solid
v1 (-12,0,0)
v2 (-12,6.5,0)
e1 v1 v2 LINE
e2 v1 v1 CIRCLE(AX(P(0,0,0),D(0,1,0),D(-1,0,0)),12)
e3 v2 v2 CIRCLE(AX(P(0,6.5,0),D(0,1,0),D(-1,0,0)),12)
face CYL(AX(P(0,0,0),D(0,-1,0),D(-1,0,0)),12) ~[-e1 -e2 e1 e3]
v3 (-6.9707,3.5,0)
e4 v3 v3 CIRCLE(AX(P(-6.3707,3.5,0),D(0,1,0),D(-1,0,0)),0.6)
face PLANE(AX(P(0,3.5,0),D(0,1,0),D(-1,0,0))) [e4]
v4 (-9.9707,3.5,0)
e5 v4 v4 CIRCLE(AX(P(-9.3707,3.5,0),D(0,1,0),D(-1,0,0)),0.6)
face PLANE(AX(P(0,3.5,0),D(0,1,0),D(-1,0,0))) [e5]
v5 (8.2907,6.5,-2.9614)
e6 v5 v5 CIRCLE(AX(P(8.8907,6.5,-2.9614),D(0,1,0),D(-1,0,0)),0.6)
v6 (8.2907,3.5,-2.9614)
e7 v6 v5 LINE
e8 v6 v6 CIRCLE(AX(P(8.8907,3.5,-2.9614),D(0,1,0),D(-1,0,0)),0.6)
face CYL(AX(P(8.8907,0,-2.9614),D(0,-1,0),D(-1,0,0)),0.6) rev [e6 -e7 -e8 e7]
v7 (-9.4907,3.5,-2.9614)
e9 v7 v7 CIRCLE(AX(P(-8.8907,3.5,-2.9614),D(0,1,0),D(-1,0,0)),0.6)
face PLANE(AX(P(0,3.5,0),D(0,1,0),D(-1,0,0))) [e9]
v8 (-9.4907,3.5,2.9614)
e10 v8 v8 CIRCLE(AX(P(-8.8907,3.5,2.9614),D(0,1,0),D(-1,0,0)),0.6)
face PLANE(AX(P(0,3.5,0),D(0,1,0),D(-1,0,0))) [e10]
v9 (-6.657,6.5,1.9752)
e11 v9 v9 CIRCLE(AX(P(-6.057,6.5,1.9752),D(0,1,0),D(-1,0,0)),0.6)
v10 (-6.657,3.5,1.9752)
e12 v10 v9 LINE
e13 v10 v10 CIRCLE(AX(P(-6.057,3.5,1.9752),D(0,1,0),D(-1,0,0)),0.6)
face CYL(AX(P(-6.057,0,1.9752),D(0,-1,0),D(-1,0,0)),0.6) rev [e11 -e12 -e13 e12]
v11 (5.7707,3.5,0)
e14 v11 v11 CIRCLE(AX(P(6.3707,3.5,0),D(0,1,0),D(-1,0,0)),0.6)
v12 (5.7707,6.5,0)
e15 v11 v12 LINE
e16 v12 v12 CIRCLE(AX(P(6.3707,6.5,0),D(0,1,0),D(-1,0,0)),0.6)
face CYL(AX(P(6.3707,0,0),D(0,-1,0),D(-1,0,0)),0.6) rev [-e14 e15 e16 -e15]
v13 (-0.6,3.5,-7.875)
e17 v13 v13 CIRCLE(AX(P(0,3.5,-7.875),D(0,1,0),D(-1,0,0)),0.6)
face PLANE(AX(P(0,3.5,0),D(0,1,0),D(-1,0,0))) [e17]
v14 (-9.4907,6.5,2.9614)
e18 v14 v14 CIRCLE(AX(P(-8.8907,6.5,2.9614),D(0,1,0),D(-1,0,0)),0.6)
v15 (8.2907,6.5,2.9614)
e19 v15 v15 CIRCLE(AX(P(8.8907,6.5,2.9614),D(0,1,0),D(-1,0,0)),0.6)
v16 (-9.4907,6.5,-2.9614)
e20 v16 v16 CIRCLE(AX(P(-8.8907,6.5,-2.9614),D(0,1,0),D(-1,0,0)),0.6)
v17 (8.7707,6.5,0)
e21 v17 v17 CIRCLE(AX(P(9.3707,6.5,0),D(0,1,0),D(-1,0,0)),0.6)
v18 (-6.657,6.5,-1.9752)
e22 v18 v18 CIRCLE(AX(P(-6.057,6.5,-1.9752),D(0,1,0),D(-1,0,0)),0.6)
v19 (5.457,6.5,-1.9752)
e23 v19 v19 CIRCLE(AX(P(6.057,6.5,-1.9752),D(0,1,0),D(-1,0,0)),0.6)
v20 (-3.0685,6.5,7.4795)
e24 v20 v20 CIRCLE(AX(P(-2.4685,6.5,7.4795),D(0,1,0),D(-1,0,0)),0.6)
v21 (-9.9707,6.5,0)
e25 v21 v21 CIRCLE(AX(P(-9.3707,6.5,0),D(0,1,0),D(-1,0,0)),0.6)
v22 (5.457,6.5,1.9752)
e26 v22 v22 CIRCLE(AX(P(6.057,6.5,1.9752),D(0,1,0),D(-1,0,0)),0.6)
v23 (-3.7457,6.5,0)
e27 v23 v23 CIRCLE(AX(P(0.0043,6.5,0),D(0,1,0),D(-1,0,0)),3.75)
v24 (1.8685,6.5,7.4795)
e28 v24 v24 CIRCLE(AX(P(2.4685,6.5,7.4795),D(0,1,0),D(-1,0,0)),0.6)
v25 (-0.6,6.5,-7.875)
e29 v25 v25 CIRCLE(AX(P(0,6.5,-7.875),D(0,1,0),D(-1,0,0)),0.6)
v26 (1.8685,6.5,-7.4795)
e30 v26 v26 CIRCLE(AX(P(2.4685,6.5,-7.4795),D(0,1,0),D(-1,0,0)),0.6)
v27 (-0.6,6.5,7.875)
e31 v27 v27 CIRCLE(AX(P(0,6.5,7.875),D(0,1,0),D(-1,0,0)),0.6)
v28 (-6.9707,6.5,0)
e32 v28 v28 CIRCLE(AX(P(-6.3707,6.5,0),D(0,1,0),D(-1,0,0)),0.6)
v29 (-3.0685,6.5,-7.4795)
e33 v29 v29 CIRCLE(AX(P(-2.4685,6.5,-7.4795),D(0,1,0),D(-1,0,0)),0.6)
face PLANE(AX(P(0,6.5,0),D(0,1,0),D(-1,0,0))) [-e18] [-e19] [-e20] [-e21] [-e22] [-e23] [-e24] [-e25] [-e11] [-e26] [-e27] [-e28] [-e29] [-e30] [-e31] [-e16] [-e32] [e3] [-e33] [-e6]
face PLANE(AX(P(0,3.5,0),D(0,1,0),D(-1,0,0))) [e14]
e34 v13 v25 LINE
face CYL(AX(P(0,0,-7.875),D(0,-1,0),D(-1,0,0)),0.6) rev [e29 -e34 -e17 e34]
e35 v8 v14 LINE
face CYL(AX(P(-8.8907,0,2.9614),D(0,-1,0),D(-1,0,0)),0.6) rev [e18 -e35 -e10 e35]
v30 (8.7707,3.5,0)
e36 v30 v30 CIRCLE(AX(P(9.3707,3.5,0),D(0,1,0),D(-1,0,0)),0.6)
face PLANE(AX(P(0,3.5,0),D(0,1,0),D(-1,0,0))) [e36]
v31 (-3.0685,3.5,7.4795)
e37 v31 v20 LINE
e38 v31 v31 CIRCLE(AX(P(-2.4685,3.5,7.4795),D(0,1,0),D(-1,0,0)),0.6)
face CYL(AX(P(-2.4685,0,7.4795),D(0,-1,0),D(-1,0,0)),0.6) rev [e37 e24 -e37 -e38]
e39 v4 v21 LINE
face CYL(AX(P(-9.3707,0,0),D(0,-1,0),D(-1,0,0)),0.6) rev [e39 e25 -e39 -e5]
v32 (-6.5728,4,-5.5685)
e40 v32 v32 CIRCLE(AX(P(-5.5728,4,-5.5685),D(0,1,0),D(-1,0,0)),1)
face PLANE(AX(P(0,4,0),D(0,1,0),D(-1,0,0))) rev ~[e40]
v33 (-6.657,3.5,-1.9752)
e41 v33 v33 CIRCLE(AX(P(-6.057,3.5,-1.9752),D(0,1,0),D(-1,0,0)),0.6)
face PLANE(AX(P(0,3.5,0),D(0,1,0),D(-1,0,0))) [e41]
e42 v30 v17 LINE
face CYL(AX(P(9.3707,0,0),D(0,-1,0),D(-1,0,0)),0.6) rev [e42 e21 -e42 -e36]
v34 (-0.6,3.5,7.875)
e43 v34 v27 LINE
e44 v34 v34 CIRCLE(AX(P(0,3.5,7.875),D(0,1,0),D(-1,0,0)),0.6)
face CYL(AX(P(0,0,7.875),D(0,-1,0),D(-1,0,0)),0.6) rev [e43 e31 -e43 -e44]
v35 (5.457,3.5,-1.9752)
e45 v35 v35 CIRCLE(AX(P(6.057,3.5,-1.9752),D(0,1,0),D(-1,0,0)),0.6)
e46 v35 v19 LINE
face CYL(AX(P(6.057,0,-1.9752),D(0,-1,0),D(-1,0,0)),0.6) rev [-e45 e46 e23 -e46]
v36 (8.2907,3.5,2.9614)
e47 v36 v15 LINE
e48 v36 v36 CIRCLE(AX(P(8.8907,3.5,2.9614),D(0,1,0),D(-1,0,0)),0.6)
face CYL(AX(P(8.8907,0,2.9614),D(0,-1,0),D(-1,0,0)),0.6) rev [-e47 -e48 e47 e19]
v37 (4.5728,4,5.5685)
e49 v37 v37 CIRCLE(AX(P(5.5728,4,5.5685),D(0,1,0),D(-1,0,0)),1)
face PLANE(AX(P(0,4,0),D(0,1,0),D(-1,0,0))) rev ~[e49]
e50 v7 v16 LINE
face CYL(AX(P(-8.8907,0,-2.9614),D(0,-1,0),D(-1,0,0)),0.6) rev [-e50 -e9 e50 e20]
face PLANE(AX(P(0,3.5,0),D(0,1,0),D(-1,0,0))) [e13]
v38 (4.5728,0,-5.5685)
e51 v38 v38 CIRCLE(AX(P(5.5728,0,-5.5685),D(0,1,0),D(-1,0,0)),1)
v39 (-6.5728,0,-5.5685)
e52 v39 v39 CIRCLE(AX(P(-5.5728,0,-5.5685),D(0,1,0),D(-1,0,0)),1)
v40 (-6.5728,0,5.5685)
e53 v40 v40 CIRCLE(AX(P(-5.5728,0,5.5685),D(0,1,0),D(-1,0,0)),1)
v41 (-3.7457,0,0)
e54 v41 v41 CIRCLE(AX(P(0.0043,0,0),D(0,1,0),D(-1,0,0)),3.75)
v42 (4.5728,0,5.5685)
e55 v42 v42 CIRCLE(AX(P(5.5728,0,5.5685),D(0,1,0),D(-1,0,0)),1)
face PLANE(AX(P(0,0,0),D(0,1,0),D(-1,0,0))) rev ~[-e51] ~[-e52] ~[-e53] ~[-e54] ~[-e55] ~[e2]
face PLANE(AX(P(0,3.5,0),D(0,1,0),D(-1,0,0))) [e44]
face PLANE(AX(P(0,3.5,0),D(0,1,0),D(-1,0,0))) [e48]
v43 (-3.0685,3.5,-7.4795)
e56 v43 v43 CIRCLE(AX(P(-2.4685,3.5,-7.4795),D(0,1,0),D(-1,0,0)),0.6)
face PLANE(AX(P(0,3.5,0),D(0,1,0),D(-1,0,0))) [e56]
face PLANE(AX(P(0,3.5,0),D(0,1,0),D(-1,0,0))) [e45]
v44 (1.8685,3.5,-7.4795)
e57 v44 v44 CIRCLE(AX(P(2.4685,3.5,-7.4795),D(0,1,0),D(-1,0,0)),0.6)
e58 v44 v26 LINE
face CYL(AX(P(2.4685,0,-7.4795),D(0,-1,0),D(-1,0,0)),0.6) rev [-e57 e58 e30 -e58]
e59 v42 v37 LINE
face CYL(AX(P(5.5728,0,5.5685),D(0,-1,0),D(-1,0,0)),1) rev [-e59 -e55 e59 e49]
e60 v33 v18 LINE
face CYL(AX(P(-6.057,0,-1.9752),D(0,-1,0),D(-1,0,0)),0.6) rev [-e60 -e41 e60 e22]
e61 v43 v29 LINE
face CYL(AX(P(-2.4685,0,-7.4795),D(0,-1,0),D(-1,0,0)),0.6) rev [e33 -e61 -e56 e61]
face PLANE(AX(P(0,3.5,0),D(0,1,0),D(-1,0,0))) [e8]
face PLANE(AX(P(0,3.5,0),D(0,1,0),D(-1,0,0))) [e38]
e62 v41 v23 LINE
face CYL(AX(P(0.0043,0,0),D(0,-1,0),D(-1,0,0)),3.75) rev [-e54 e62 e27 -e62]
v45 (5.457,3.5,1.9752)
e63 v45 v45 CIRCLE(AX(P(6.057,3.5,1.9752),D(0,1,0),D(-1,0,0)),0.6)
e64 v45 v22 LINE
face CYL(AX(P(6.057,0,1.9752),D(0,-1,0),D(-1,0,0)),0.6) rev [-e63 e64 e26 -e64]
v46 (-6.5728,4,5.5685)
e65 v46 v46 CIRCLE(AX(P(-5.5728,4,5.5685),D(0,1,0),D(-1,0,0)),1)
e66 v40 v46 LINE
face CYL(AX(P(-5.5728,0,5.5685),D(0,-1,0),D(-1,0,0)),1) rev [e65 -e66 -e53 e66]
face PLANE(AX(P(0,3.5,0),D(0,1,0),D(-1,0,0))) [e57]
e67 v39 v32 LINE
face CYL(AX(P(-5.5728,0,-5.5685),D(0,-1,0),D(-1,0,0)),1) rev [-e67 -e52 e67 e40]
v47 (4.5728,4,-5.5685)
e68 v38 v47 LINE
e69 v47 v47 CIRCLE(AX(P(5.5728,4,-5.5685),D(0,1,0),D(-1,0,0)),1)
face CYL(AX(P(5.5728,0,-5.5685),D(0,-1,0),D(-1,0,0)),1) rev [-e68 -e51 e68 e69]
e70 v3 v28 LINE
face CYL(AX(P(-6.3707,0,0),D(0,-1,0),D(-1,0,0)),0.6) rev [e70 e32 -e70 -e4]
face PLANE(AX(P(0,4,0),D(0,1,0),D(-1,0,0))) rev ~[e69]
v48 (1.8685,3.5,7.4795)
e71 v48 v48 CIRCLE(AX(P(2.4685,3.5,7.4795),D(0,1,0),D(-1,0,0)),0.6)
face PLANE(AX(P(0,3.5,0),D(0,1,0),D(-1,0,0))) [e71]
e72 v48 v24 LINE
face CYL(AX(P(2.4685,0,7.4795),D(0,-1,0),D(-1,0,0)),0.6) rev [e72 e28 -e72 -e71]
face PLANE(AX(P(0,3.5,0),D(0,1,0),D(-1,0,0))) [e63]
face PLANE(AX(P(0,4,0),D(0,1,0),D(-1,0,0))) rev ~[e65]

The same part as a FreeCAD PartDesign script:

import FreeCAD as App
import Part
import Sketcher

doc = App.newDocument("Part")
body = doc.addObject("PartDesign::Body", "Body")

# Sketch on XZ plane
sketch1 = doc.addObject("Sketcher::SketchObject", "Sketch")
body.addObject(sketch1)
sketch1.AttachmentSupport = (doc.XZ_Plane, [""])
sketch1.MapMode = "FlatFace"
sketch1.addGeometry([
    Part.Circle(App.Vector(0, 0, 0), App.Vector(0, 0, 1), 12),  # 0
    Part.Circle(App.Vector(2.5, -7.5, 0), App.Vector(0, 0, 1), 0.6),  # 1
    Part.Circle(App.Vector(8.9, -3, 0), App.Vector(0, 0, 1), 0.6),  # 2
    Part.Circle(App.Vector(6.1, -2, 0), App.Vector(0, 0, 1), 0.6),  # 3
    Part.Circle(App.Vector(0, -7.9, 0), App.Vector(0, 0, 1), 0.6),  # 4
    Part.Circle(App.Vector(-2.5, -7.5, 0), App.Vector(0, 0, 1), 0.6),  # 5
    Part.Circle(App.Vector(-6.1, -2, 0), App.Vector(0, 0, 1), 0.6),  # 6
    Part.Circle(App.Vector(-8.9, -3, 0), App.Vector(0, 0, 1), 0.6),  # 7
    Part.Circle(App.Vector(9.4, 0, 0), App.Vector(0, 0, 1), 0.6),  # 8
    Part.Circle(App.Vector(6.4, 0, 0), App.Vector(0, 0, 1), 0.6),  # 9
    Part.Circle(App.Vector(8.9, 3, 0), App.Vector(0, 0, 1), 0.6),  # 10
    Part.Circle(App.Vector(6.1, 2, 0), App.Vector(0, 0, 1), 0.6),  # 11
    Part.Circle(App.Vector(0, 0, 0), App.Vector(0, 0, 1), 3.8),  # 12
    Part.Circle(App.Vector(2.5, 7.5, 0), App.Vector(0, 0, 1), 0.6),  # 13
    Part.Circle(App.Vector(-6.4, 0, 0), App.Vector(0, 0, 1), 0.6),  # 14
    Part.Circle(App.Vector(-6.1, 2, 0), App.Vector(0, 0, 1), 0.6),  # 15
    Part.Circle(App.Vector(-8.9, 3, 0), App.Vector(0, 0, 1), 0.6),  # 16
    Part.Circle(App.Vector(-9.4, 0, 0), App.Vector(0, 0, 1), 0.6),  # 17
    Part.Circle(App.Vector(-2.5, 7.5, 0), App.Vector(0, 0, 1), 0.6),  # 18
    Part.Circle(App.Vector(0, 7.9, 0), App.Vector(0, 0, 1), 0.6),  # 19
], False)
sketch1.addConstraint([
    Sketcher.Constraint("Coincident", 0, 3, -1, 1),
    Sketcher.Constraint("Equal", 1, 2),
    Sketcher.Constraint("Equal", 2, 3),
    Sketcher.Constraint("Equal", 3, 4),
    Sketcher.Constraint("Equal", 4, 5),
    Sketcher.Constraint("Equal", 5, 6),
    Sketcher.Constraint("Equal", 6, 7),
    Sketcher.Constraint("Equal", 7, 8),
    Sketcher.Constraint("Equal", 8, 9),
    Sketcher.Constraint("Equal", 9, 10),
    Sketcher.Constraint("Equal", 10, 11),
    Sketcher.Constraint("Equal", 11, 13),
    Sketcher.Constraint("Equal", 13, 14),
    Sketcher.Constraint("Equal", 14, 15),
    Sketcher.Constraint("Equal", 15, 16),
    Sketcher.Constraint("Equal", 16, 17),
    Sketcher.Constraint("Equal", 17, 18),
    Sketcher.Constraint("Equal", 18, 19),
    Sketcher.Constraint("Symmetric", 7, 3, 10, 3, -1, 1),
    Sketcher.Constraint("Symmetric", 6, 3, 11, 3, -1, 1),
    Sketcher.Constraint("Symmetric", 5, 3, 13, 3, -1, 1),
    Sketcher.Constraint("Symmetric", 9, 3, 14, 3, -1, 1),
    Sketcher.Constraint("Symmetric", 3, 3, 15, 3, -1, 1),
    Sketcher.Constraint("Symmetric", 2, 3, 16, 3, -1, 1),
    Sketcher.Constraint("Symmetric", 8, 3, 17, 3, -1, 1),
    Sketcher.Constraint("Symmetric", 1, 3, 18, 3, -1, 1),
    Sketcher.Constraint("Symmetric", 4, 3, 19, 3, -1, 1),
    Sketcher.Constraint("Symmetric", 1, 3, 5, 3, -2),
    Sketcher.Constraint("Symmetric", 3, 3, 6, 3, -2),
    Sketcher.Constraint("Symmetric", 2, 3, 7, 3, -2),
    Sketcher.Constraint("PointOnObject", 4, 3, -2),
    Sketcher.Constraint("PointOnObject", 8, 3, -1),
    Sketcher.Constraint("PointOnObject", 9, 3, -1),
    Sketcher.Constraint("PointOnObject", 12, 3, -1),
    Sketcher.Constraint("Diameter", 0, 24.0),
    Sketcher.Constraint("Diameter", 1, 1.2),
    Sketcher.Constraint("Diameter", 12, 7.5),
    Sketcher.Constraint("DistanceX", 9, 3, 8, 3, 3.0),
    Sketcher.Constraint("DistanceX", 2, 3, 8, 3, 0.48),
    Sketcher.Constraint("DistanceX", -1, 1, 3, 3, 6.057),
    Sketcher.Constraint("DistanceY", 4, 3, -1, 1, 7.875),
    Sketcher.Constraint("DistanceY", 1, 3, 2, 3, 4.518),
    Sketcher.Constraint("DistanceX", 5, 3, 1, 3, 4.937),
    Sketcher.Constraint("DistanceX", 14, 3, 12, 3, 6.375),
    Sketcher.Constraint("DistanceY", 1, 3, -1, 1, 7.4795),
    Sketcher.Constraint("DistanceX", -1, 1, 2, 3, 8.8907),
    Sketcher.Constraint("DistanceY", 3, 3, -1, 1, 1.9752),
])
pad1 = doc.addObject("PartDesign::Pad", "Pad")
body.addObject(pad1)
pad1.Profile = sketch1
pad1.Length = 6.5
pad1.Reversed = True

# Sketch on XZ plane
sketch2 = doc.addObject("Sketcher::SketchObject", "Sketch001")
body.addObject(sketch2)
sketch2.AttachmentSupport = (doc.XZ_Plane, [""])
sketch2.MapMode = "FlatFace"
sketch2.addGeometry([
    Part.Circle(App.Vector(0, -7.9, 0), App.Vector(0, 0, 1), 0.6),  # 0
    Part.Circle(App.Vector(-6.4, 0, 0), App.Vector(0, 0, 1), 0.6),  # 1
    Part.Circle(App.Vector(-9.4, 0, 0), App.Vector(0, 0, 1), 0.6),  # 2
    Part.Circle(App.Vector(0, 7.9, 0), App.Vector(0, 0, 1), 0.6),  # 3
    Part.Circle(App.Vector(6.4, 0, 0), App.Vector(0, 0, 1), 0.6),  # 4
    Part.Circle(App.Vector(9.4, 0, 0), App.Vector(0, 0, 1), 0.6),  # 5
    Part.Circle(App.Vector(2.5, 7.5, 0), App.Vector(0, 0, 1), 0.6),  # 6
    Part.Circle(App.Vector(-2.5, 7.5, 0), App.Vector(0, 0, 1), 0.6),  # 7
    Part.Circle(App.Vector(2.5, -7.5, 0), App.Vector(0, 0, 1), 0.6),  # 8
    Part.Circle(App.Vector(-2.5, -7.5, 0), App.Vector(0, 0, 1), 0.6),  # 9
    Part.Circle(App.Vector(-6.1, 2, 0), App.Vector(0, 0, 1), 0.6),  # 10
    Part.Circle(App.Vector(-8.9, 3, 0), App.Vector(0, 0, 1), 0.6),  # 11
    Part.Circle(App.Vector(-6.1, -2, 0), App.Vector(0, 0, 1), 0.6),  # 12
    Part.Circle(App.Vector(-8.9, -3, 0), App.Vector(0, 0, 1), 0.6),  # 13
    Part.Circle(App.Vector(6.1, 2, 0), App.Vector(0, 0, 1), 0.6),  # 14
    Part.Circle(App.Vector(8.9, 3, 0), App.Vector(0, 0, 1), 0.6),  # 15
    Part.Circle(App.Vector(8.9, -3, 0), App.Vector(0, 0, 1), 0.6),  # 16
    Part.Circle(App.Vector(6.1, -2, 0), App.Vector(0, 0, 1), 0.6),  # 17
], False)
sketch2.addConstraint([
    Sketcher.Constraint("Equal", 0, 1),
    Sketcher.Constraint("Equal", 1, 2),
    Sketcher.Constraint("Equal", 2, 3),
    Sketcher.Constraint("Equal", 3, 4),
    Sketcher.Constraint("Equal", 4, 5),
    Sketcher.Constraint("Equal", 5, 6),
    Sketcher.Constraint("Equal", 6, 7),
    Sketcher.Constraint("Equal", 7, 8),
    Sketcher.Constraint("Equal", 8, 9),
    Sketcher.Constraint("Equal", 9, 10),
    Sketcher.Constraint("Equal", 10, 11),
    Sketcher.Constraint("Equal", 11, 12),
    Sketcher.Constraint("Equal", 12, 13),
    Sketcher.Constraint("Equal", 13, 14),
    Sketcher.Constraint("Equal", 14, 15),
    Sketcher.Constraint("Equal", 15, 16),
    Sketcher.Constraint("Equal", 16, 17),
    Sketcher.Constraint("Symmetric", 0, 3, 3, 3, -1, 1),
    Sketcher.Constraint("Symmetric", 1, 3, 4, 3, -1, 1),
    Sketcher.Constraint("Symmetric", 2, 3, 5, 3, -1, 1),
    Sketcher.Constraint("Symmetric", 7, 3, 8, 3, -1, 1),
    Sketcher.Constraint("Symmetric", 6, 3, 9, 3, -1, 1),
    Sketcher.Constraint("Symmetric", 12, 3, 14, 3, -1, 1),
    Sketcher.Constraint("Symmetric", 13, 3, 15, 3, -1, 1),
    Sketcher.Constraint("Symmetric", 11, 3, 16, 3, -1, 1),
    Sketcher.Constraint("Symmetric", 10, 3, 17, 3, -1, 1),
    Sketcher.Constraint("Symmetric", 6, 3, 7, 3, -2),
    Sketcher.Constraint("Symmetric", 10, 3, 14, 3, -2),
    Sketcher.Constraint("Symmetric", 11, 3, 15, 3, -2),
    Sketcher.Constraint("PointOnObject", 0, 3, -2),
    Sketcher.Constraint("PointOnObject", 1, 3, -1),
    Sketcher.Constraint("PointOnObject", 2, 3, -1),
    Sketcher.Constraint("Diameter", 0, 1.2),
    Sketcher.Constraint("DistanceY", 0, 3, 3, 3, 15.75),
    Sketcher.Constraint("DistanceX", 2, 3, 1, 3, 3.0),
    Sketcher.Constraint("DistanceX", 2, 3, 11, 3, 0.48),
    Sketcher.Constraint("DistanceX", 10, 3, -1, 1, 6.057),
    Sketcher.Constraint("DistanceX", 7, 3, 6, 3, 4.937),
    Sketcher.Constraint("DistanceY", 11, 3, 7, 3, 4.518),
    Sketcher.Constraint("DistanceX", 1, 3, -1, 1, 6.3707),
    Sketcher.Constraint("DistanceY", -1, 1, 6, 3, 7.4795),
    Sketcher.Constraint("DistanceY", -1, 1, 10, 3, 1.9752),
])
pad2 = doc.addObject("PartDesign::Pad", "Pad001")
body.addObject(pad2)
pad2.Profile = sketch2
pad2.Length = 3.5
pad2.Reversed = True

# Sketch on XZ plane
sketch3 = doc.addObject("Sketcher::SketchObject", "Sketch002")
body.addObject(sketch3)
sketch3.AttachmentSupport = (doc.XZ_Plane, [""])
sketch3.MapMode = "FlatFace"
sketch3.addGeometry([
    Part.Circle(App.Vector(5.6, 5.6, 0), App.Vector(0, 0, 1), 1),
    Part.Circle(App.Vector(-5.6, 5.6, 0), App.Vector(0, 0, 1), 1),
    Part.Circle(App.Vector(5.6, -5.6, 0), App.Vector(0, 0, 1), 1),
    Part.Circle(App.Vector(-5.6, -5.6, 0), App.Vector(0, 0, 1), 1),
], False)
sketch3.addConstraint([
    Sketcher.Constraint("Equal", 0, 1),
    Sketcher.Constraint("Equal", 1, 2),
    Sketcher.Constraint("Equal", 2, 3),
    Sketcher.Constraint("Symmetric", 1, 3, 2, 3, -1, 1),
    Sketcher.Constraint("Symmetric", 0, 3, 3, 3, -1, 1),
    Sketcher.Constraint("Symmetric", 0, 3, 1, 3, -2),
    Sketcher.Constraint("Diameter", 0, 2.0),
    Sketcher.Constraint("DistanceY", 2, 3, 0, 3, 11.137),
    Sketcher.Constraint("DistanceX", -1, 1, 0, 3, 5.5728),
])
pocket1 = doc.addObject("PartDesign::Pocket", "Pocket")
body.addObject(pocket1)
pocket1.Profile = sketch3
pocket1.Length = 4

doc.recompute()
